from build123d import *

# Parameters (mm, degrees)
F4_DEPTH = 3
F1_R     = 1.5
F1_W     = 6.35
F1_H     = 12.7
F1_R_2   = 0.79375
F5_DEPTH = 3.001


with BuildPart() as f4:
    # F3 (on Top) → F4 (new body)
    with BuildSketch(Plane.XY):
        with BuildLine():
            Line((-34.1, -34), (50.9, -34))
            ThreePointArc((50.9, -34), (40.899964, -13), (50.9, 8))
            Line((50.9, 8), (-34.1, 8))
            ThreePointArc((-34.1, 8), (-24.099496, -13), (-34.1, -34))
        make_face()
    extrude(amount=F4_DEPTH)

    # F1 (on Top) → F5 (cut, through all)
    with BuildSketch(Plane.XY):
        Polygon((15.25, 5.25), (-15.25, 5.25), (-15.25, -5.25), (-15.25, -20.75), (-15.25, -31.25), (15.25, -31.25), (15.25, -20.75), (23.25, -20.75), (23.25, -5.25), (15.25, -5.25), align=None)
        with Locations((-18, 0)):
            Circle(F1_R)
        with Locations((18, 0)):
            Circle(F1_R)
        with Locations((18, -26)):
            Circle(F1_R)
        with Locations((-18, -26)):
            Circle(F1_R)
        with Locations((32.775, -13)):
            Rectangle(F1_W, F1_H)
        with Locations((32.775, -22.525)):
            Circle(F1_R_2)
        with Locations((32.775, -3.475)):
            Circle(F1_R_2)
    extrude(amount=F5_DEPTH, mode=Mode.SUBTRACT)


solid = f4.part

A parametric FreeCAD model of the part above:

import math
import FreeCAD as App
import Part
import Sketcher
Q = App.Units.Quantity

doc = App.newDocument("Part")
body = doc.addObject("PartDesign::Body", "Body")

# Sketch on XY plane
sketch1 = body.newObject("Sketcher::SketchObject", "Sketch")
sketch1.AttachmentSupport = (doc.getObject("XY_Plane"), [""])
sketch1.MapMode = "FlatFace"
sketch1.addGeometry([
    Part.LineSegment(App.Vector(-34.1, -34, 0), App.Vector(50.9, -34, 0)),
    Part.ArcOfCircle(Part.Circle(App.Vector(67.949903, -13, 0), App.Vector(0, 0, 1), 27.049939), math.radians(129.07315), math.radians(230.92685)),
    Part.LineSegment(App.Vector(50.9, 8, 0), App.Vector(-34.1, 8, 0)),
    Part.ArcOfCircle(Part.Circle(App.Vector(-51.148637, -13, 0), App.Vector(0, 0, 1), 27.049141), math.radians(-50.928932), math.radians(50.928932)),
], False)
sketch1.addConstraint([
    Sketcher.Constraint("Coincident", 0, 2, 1, 2),
    Sketcher.Constraint("Coincident", 1, 1, 2, 1),
    Sketcher.Constraint("Coincident", 2, 2, 3, 2),
    Sketcher.Constraint("Coincident", 3, 1, 0, 1),
    Sketcher.Constraint("Horizontal", 0),
    Sketcher.Constraint("Horizontal", 2),
    Sketcher.Constraint("Horizontal", 1, 3, 3, 3),
    Sketcher.Constraint("Vertical", 0, 2, 1, 1),
    Sketcher.Constraint("DistanceX", 0, 1, 0, 2, Q("85 mm")),
    Sketcher.Constraint("DistanceY", 1, 3, -1, 1, Q("13 mm")),
    Sketcher.Constraint("DistanceY", 0, 2, -1, 1, Q("34 mm")),
    Sketcher.Constraint("DistanceX", -1, 1, 0, 2, Q("50.9 mm")),
    Sketcher.Constraint("Radius", 1, Q("27.049939 mm")),
    Sketcher.Constraint("Radius", 3, Q("27.049141 mm")),
])
pad1 = body.newObject("PartDesign::Pad", "Pad")
pad1.Profile = sketch1
pad1.Length = 3

# Sketch on XY plane
sketch2 = body.newObject("Sketcher::SketchObject", "Sketch001")
sketch2.AttachmentSupport = (doc.getObject("XY_Plane"), [""])
sketch2.MapMode = "FlatFace"
sketch2.addGeometry([
    Part.LineSegment(App.Vector(15.25, 5.25, 0), App.Vector(-15.25, 5.25, 0)),  # 0
    Part.LineSegment(App.Vector(-15.25, 5.25, 0), App.Vector(-15.25, -31.25, 0)),  # 1
    Part.LineSegment(App.Vector(-15.25, -31.25, 0), App.Vector(15.25, -31.25, 0)),  # 2
    Part.LineSegment(App.Vector(15.25, -31.25, 0), App.Vector(15.25, -20.75, 0)),  # 3
    Part.LineSegment(App.Vector(15.25, -20.75, 0), App.Vector(23.25, -20.75, 0)),  # 4
    Part.LineSegment(App.Vector(23.25, -20.75, 0), App.Vector(23.25, -5.25, 0)),  # 5
    Part.LineSegment(App.Vector(23.25, -5.25, 0), App.Vector(15.25, -5.25, 0)),  # 6
    Part.LineSegment(App.Vector(15.25, -5.25, 0), App.Vector(15.25, 5.25, 0)),  # 7
    Part.Circle(App.Vector(-18, 0, 0), App.Vector(0, 0, 1), 1.5),  # 8
    Part.Circle(App.Vector(18, 0, 0), App.Vector(0, 0, 1), 1.5),  # 9
    Part.Circle(App.Vector(18, -26, 0), App.Vector(0, 0, 1), 1.5),  # 10
    Part.Circle(App.Vector(-18, -26, 0), App.Vector(0, 0, 1), 1.5),  # 11
    Part.LineSegment(App.Vector(29.6, -6.65, 0), App.Vector(29.6, -19.35, 0)),  # 12
    Part.LineSegment(App.Vector(29.6, -19.35, 0), App.Vector(35.95, -19.35, 0)),  # 13
    Part.LineSegment(App.Vector(35.95, -19.35, 0), App.Vector(35.95, -6.65, 0)),  # 14
    Part.LineSegment(App.Vector(35.95, -6.65, 0), App.Vector(29.6, -6.65, 0)),  # 15
    Part.Circle(App.Vector(32.775, -22.525, 0), App.Vector(0, 0, 1), 0.79375),  # 16
    Part.Circle(App.Vector(32.775, -3.475, 0), App.Vector(0, 0, 1), 0.79375),  # 17
], False)
sketch2.addConstraint([
    Sketcher.Constraint("Coincident", 0, 2, 1, 1),
    Sketcher.Constraint("Coincident", 1, 2, 2, 1),
    Sketcher.Constraint("Coincident", 2, 2, 3, 1),
    Sketcher.Constraint("Coincident", 3, 2, 4, 1),
    Sketcher.Constraint("Coincident", 4, 2, 5, 1),
    Sketcher.Constraint("Coincident", 5, 2, 6, 1),
    Sketcher.Constraint("Coincident", 6, 2, 7, 1),
    Sketcher.Constraint("Coincident", 7, 2, 0, 1),
    Sketcher.Constraint("Coincident", 12, 2, 13, 1),
    Sketcher.Constraint("Coincident", 13, 2, 14, 1),
    Sketcher.Constraint("Coincident", 14, 2, 15, 1),
    Sketcher.Constraint("Coincident", 15, 2, 12, 1),
    Sketcher.Constraint("Horizontal", 0),
    Sketcher.Constraint("Vertical", 1),
    Sketcher.Constraint("Horizontal", 2),
    Sketcher.Constraint("Vertical", 3),
    Sketcher.Constraint("Horizontal", 4),
    Sketcher.Constraint("Vertical", 5),
    Sketcher.Constraint("Horizontal", 6),
    Sketcher.Constraint("Vertical", 7),
    Sketcher.Constraint("Vertical", 12),
    Sketcher.Constraint("Horizontal", 13),
    Sketcher.Constraint("Vertical", 14),
    Sketcher.Constraint("Horizontal", 15),
    Sketcher.Constraint("Equal", 8, 9),
    Sketcher.Constraint("Equal", 9, 10),
    Sketcher.Constraint("Equal", 10, 11),
    Sketcher.Constraint("Equal", 16, 17),
    Sketcher.Constraint("Symmetric", 8, 3, 9, 3, -1, 1),
    Sketcher.Constraint("Symmetric", 0, 2, 6, 2, -1, 1),
    Sketcher.Constraint("Symmetric", 10, 3, 11, 3, -2),
    Sketcher.Constraint("PointOnObject", 8, 3, -1),
    Sketcher.Constraint("Vertical", 9, 3, 10, 3),
    Sketcher.Constraint("Vertical", 16, 3, 17, 3),
    Sketcher.Constraint("Vertical", 3, 2, 6, 2),
    Sketcher.Constraint("Equal", 3, 7),
    Sketcher.Constraint("Diameter", 8, Q("3 mm")),
    Sketcher.Constraint("DistanceX", 4, 1, 4, 2, Q("8 mm")),
    Sketcher.Constraint("DistanceX", 0, 2, 0, 1, Q("30.5 mm")),
    Sketcher.Constraint("DistanceY", 1, 2, 1, 1, Q("36.5 mm")),
    Sketcher.Constraint("DistanceY", 3, 1, 3, 2, Q("10.5 mm")),
    Sketcher.Constraint("DistanceY", 12, 2, 12, 1, Q("12.7 mm")),
    Sketcher.Constraint("DistanceX", 8, 3, -1, 1, Q("18 mm")),
    Sketcher.Constraint("DistanceY", 10, 3, -1, 1, Q("26 mm")),
    Sketcher.Constraint("Diameter", 16, Q("1.5875 mm")),
    Sketcher.Constraint("DistanceX", 13, 1, 13, 2, Q("6.35 mm")),
    Sketcher.Constraint("DistanceX", -1, 1, 12, 2, Q("29.6 mm")),
    Sketcher.Constraint("DistanceY", 4, 2, 12, 2, Q("1.4 mm")),
    Sketcher.Constraint("DistanceY", 16, 3, 17, 3, Q("19.05 mm")),
    Sketcher.Constraint("DistanceX", -1, 1, 16, 3, Q("32.775 mm")),
    Sketcher.Constraint("DistanceY", 16, 3, -1, 1, Q("22.525 mm")),
])
pocket1 = body.newObject("PartDesign::Pocket", "Pocket")
pocket1.Profile = sketch2
pocket1.Type = "ThroughAll"
pocket1.Reversed = True

doc.recompute()
